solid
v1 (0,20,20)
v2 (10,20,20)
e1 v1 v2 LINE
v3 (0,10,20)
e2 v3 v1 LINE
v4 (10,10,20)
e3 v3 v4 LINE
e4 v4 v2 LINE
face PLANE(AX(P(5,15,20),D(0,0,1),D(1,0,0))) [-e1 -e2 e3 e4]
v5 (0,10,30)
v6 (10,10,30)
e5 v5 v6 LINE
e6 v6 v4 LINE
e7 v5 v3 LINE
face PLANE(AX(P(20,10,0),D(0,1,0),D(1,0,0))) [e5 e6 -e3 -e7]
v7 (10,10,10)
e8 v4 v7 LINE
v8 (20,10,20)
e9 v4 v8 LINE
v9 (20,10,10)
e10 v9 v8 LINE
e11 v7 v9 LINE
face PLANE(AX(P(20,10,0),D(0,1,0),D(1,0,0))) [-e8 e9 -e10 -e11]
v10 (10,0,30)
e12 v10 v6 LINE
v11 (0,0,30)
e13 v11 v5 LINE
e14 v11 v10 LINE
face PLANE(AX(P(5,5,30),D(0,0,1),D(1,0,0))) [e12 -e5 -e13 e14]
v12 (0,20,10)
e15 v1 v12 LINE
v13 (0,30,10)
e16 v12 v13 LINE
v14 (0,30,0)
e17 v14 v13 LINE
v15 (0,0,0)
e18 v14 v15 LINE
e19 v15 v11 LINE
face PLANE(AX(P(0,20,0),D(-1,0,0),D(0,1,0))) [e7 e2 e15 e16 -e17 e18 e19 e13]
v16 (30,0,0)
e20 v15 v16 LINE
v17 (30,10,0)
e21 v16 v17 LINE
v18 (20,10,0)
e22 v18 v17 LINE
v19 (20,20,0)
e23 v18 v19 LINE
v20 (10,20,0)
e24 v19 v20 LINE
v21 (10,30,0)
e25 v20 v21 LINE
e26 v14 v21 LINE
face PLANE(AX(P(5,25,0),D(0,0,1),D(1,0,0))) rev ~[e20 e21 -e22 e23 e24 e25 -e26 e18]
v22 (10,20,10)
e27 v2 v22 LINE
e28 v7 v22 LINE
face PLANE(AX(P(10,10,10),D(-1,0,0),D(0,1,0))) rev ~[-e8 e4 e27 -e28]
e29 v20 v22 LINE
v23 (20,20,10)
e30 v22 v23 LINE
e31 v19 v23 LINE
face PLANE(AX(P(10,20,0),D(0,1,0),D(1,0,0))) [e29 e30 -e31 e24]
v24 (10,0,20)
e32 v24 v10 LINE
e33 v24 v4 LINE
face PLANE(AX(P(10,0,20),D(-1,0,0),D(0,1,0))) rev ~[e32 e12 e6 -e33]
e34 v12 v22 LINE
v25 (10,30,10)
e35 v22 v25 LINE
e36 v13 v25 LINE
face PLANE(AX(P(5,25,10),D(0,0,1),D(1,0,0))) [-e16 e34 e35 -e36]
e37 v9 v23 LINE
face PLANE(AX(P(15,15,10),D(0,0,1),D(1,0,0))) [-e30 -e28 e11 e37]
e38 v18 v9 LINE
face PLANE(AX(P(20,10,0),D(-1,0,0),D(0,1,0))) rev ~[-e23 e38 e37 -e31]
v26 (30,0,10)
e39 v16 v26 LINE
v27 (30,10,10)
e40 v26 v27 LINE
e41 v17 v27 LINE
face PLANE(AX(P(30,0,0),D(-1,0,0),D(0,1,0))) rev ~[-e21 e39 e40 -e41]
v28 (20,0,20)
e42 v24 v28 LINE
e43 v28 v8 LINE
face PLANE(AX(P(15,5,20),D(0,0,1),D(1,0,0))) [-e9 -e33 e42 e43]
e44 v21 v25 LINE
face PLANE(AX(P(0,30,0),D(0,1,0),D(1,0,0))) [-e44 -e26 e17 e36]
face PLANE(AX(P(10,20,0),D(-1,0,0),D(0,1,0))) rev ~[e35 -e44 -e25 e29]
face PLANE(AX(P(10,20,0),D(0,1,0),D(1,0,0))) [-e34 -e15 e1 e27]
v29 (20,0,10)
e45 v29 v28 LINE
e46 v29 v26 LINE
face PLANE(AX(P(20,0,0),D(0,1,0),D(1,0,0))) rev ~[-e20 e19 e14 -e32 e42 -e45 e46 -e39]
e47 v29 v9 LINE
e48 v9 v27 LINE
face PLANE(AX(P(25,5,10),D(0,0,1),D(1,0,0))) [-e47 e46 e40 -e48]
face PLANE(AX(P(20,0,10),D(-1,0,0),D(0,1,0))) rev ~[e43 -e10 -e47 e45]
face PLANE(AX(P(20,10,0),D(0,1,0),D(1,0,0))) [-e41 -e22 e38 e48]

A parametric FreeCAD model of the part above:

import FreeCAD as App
import Part
import Sketcher
from FreeCAD import Vector


def add_polygon(sketch, points):
    """Adds a closed chain of lines whose ends are joined by coincident constraints."""
    first, n = sketch.GeometryCount, len(points)
    for a, b in zip(points, points[1:] + points[:1]):
        sketch.addGeometry(Part.LineSegment(App.Vector(*a, 0), App.Vector(*b, 0)), False)
    for i in range(n):
        sketch.addConstraint(Sketcher.Constraint("Coincident", first + i, 2, first + (i + 1) % n, 1))

doc = App.newDocument("Part")
body = doc.addObject("PartDesign::Body", "Body")

# Sketch on XY plane
sketch1 = body.newObject("Sketcher::SketchObject", "Sketch")
sketch1.AttachmentSupport = (doc.getObject("XY_Plane"), [""])
sketch1.MapMode = "FlatFace"
add_polygon(sketch1, [(10, 10), (10, 0), (20, 0), (20, 10)])  # lines 0-3
sketch1.addConstraint(Sketcher.Constraint("Vertical", 0))
sketch1.addConstraint(Sketcher.Constraint("Horizontal", 1))
sketch1.addConstraint(Sketcher.Constraint("Vertical", 2))
sketch1.addConstraint(Sketcher.Constraint("Horizontal", 3))
sketch1.addConstraint(Sketcher.Constraint("PointOnObject", 0, 2, -1))
sketch1.addConstraint(Sketcher.Constraint("Equal", 3, 0))
sketch1.addConstraint(Sketcher.Constraint("DistanceX", 1, 1, 1, 2, 10.0))
sketch1.addConstraint(Sketcher.Constraint("DistanceX", -1, 1, 0, 2, 10.0))
pad1 = body.newObject("PartDesign::Pad", "Pad")
pad1.Profile = sketch1
pad1.Length = 10
body2 = doc.addObject("PartDesign::Body", "Body001")

# Sketch on XY plane
sketch2 = body2.newObject("Sketcher::SketchObject", "Sketch001")
sketch2.AttachmentSupport = (doc.getObject("XY_Plane001"), [""])
sketch2.MapMode = "FlatFace"
add_polygon(sketch2, [(0, 20), (0, 10), (10, 10), (10, 20)])  # lines 0-3
sketch2.addConstraint(Sketcher.Constraint("Vertical", 0))
sketch2.addConstraint(Sketcher.Constraint("Horizontal", 1))
sketch2.addConstraint(Sketcher.Constraint("Vertical", 2))
sketch2.addConstraint(Sketcher.Constraint("Horizontal", 3))
sketch2.addConstraint(Sketcher.Constraint("PointOnObject", 0, 2, -2))
sketch2.addConstraint(Sketcher.Constraint("Equal", 3, 0))
sketch2.addConstraint(Sketcher.Constraint("DistanceX", 1, 1, 1, 2, 10.0))
sketch2.addConstraint(Sketcher.Constraint("DistanceY", -1, 1, 0, 2, 10.0))
pad2 = body2.newObject("PartDesign::Pad", "Pad001")
pad2.Profile = sketch2
pad2.Length = 10
body3 = doc.addObject("PartDesign::Body", "Body002")

# Sketch on XY plane
sketch3 = body3.newObject("Sketcher::SketchObject", "Sketch002")
sketch3.AttachmentSupport = (doc.getObject("XY_Plane002"), [""])
sketch3.MapMode = "FlatFace"
sketch3.AttachmentOffset = App.Placement(Vector(0, 0, 10), App.Rotation())
add_polygon(sketch3, [(0, 10), (0, 0), (10, 0), (10, 10)])  # lines 0-3
sketch3.addConstraint(Sketcher.Constraint("Vertical", 0))
sketch3.addConstraint(Sketcher.Constraint("Horizontal", 1))
sketch3.addConstraint(Sketcher.Constraint("Vertical", 2))
sketch3.addConstraint(Sketcher.Constraint("Horizontal", 3))
sketch3.addConstraint(Sketcher.Constraint("Coincident", 0, 2, -1, 1))
sketch3.addConstraint(Sketcher.Constraint("Equal", 3, 0))
sketch3.addConstraint(Sketcher.Constraint("DistanceX", 1, 1, 1, 2, 10.0))
pad3 = body3.newObject("PartDesign::Pad", "Pad002")
pad3.Profile = sketch3
pad3.Length = 10
body4 = doc.addObject("PartDesign::Body", "Body003")

# Sketch on XY plane
sketch4 = body4.newObject("Sketcher::SketchObject", "Sketch003")
sketch4.AttachmentSupport = (doc.getObject("XY_Plane003"), [""])
sketch4.MapMode = "FlatFace"
sketch4.AttachmentOffset = App.Placement(Vector(0, 0, 20), App.Rotation())
add_polygon(sketch4, [(0, 10), (0, 0), (10, 0), (10, 10)])  # lines 0-3
sketch4.addConstraint(Sketcher.Constraint("Vertical", 0))
sketch4.addConstraint(Sketcher.Constraint("Horizontal", 1))
sketch4.addConstraint(Sketcher.Constraint("Vertical", 2))
sketch4.addConstraint(Sketcher.Constraint("Horizontal", 3))
sketch4.addConstraint(Sketcher.Constraint("Coincident", 0, 2, -1, 1))
sketch4.addConstraint(Sketcher.Constraint("Equal", 3, 0))
sketch4.addConstraint(Sketcher.Constraint("DistanceX", 1, 1, 1, 2, 10.0))
pad4 = body4.newObject("PartDesign::Pad", "Pad003")
pad4.Profile = sketch4
pad4.Length = 10
body5 = doc.addObject("PartDesign::Body", "Body004")

# Sketch on XY plane
sketch5 = body5.newObject("Sketcher::SketchObject", "Sketch004")
sketch5.AttachmentSupport = (doc.getObject("XY_Plane004"), [""])
sketch5.MapMode = "FlatFace"
sketch5.AttachmentOffset = App.Placement(Vector(0, 0, 10), App.Rotation())
add_polygon(sketch5, [(10, 10), (10, 0), (20, 0), (20, 10)])  # lines 0-3
sketch5.addConstraint(Sketcher.Constraint("Vertical", 0))
sketch5.addConstraint(Sketcher.Constraint("Horizontal", 1))
sketch5.addConstraint(Sketcher.Constraint("Vertical", 2))
sketch5.addConstraint(Sketcher.Constraint("Horizontal", 3))
sketch5.addConstraint(Sketcher.Constraint("PointOnObject", 0, 2, -1))
sketch5.addConstraint(Sketcher.Constraint("Equal", 3, 0))
sketch5.addConstraint(Sketcher.Constraint("DistanceX", 1, 1, 1, 2, 10.0))
sketch5.addConstraint(Sketcher.Constraint("DistanceX", -1, 1, 0, 2, 10.0))
pad5 = body5.newObject("PartDesign::Pad", "Pad004")
pad5.Profile = sketch5
pad5.Length = 10
body6 = doc.addObject("PartDesign::Body", "Body005")

# Sketch on XY plane
sketch6 = body6.newObject("Sketcher::SketchObject", "Sketch005")
sketch6.AttachmentSupport = (doc.getObject("XY_Plane005"), [""])
sketch6.MapMode = "FlatFace"
add_polygon(sketch6, [(20, 10), (20, 0), (30, 0), (30, 10)])  # lines 0-3
sketch6.addConstraint(Sketcher.Constraint("Vertical", 0))
sketch6.addConstraint(Sketcher.Constraint("Horizontal", 1))
sketch6.addConstraint(Sketcher.Constraint("Vertical", 2))
sketch6.addConstraint(Sketcher.Constraint("Horizontal", 3))
sketch6.addConstraint(Sketcher.Constraint("PointOnObject", 0, 2, -1))
sketch6.addConstraint(Sketcher.Constraint("Equal", 3, 0))
sketch6.addConstraint(Sketcher.Constraint("DistanceX", 1, 1, 1, 2, 10.0))
sketch6.addConstraint(Sketcher.Constraint("DistanceX", -1, 1, 0, 2, 20.0))
pad6 = body6.newObject("PartDesign::Pad", "Pad005")
pad6.Profile = sketch6
pad6.Length = 10
body7 = doc.addObject("PartDesign::Body", "Body006")

# Sketch on XY plane
sketch7 = body7.newObject("Sketcher::SketchObject", "Sketch006")
sketch7.AttachmentSupport = (doc.getObject("XY_Plane006"), [""])
sketch7.MapMode = "FlatFace"
sketch7.AttachmentOffset = App.Placement(Vector(0, 0, 10), App.Rotation())
add_polygon(sketch7, [(0, 20), (0, 10), (10, 10), (10, 20)])  # lines 0-3
sketch7.addConstraint(Sketcher.Constraint("Vertical", 0))
sketch7.addConstraint(Sketcher.Constraint("Horizontal", 1))
sketch7.addConstraint(Sketcher.Constraint("Vertical", 2))
sketch7.addConstraint(Sketcher.Constraint("Horizontal", 3))
sketch7.addConstraint(Sketcher.Constraint("PointOnObject", 0, 2, -2))
sketch7.addConstraint(Sketcher.Constraint("Equal", 3, 0))
sketch7.addConstraint(Sketcher.Constraint("DistanceX", 1, 1, 1, 2, 10.0))
sketch7.addConstraint(Sketcher.Constraint("DistanceY", -1, 1, 0, 2, 10.0))
pad7 = body7.newObject("PartDesign::Pad", "Pad006")
pad7.Profile = sketch7
pad7.Length = 10
body8 = doc.addObject("PartDesign::Body", "Body007")

# Sketch on XY plane
sketch8 = body8.newObject("Sketcher::SketchObject", "Sketch007")
sketch8.AttachmentSupport = (doc.getObject("XY_Plane007"), [""])
sketch8.MapMode = "FlatFace"
add_polygon(sketch8, [(10, 20), (10, 10), (20, 10), (20, 20)])  # lines 0-3
sketch8.addConstraint(Sketcher.Constraint("Vertical", 0))
sketch8.addConstraint(Sketcher.Constraint("Horizontal", 1))
sketch8.addConstraint(Sketcher.Constraint("Vertical", 2))
sketch8.addConstraint(Sketcher.Constraint("Horizontal", 3))
sketch8.addConstraint(Sketcher.Constraint("Equal", 3, 0))
sketch8.addConstraint(Sketcher.Constraint("DistanceX", 1, 1, 1, 2, 10.0))
sketch8.addConstraint(Sketcher.Constraint("DistanceX", -1, 1, 0, 2, 10.0))
sketch8.addConstraint(Sketcher.Constraint("DistanceY", -1, 1, 0, 2, 10.0))
pad8 = body8.newObject("PartDesign::Pad", "Pad007")
pad8.Profile = sketch8
pad8.Length = 10
body9 = doc.addObject("PartDesign::Body", "Body008")

# Sketch on XY plane
sketch9 = body9.newObject("Sketcher::SketchObject", "Sketch008")
sketch9.AttachmentSupport = (doc.getObject("XY_Plane008"), [""])
sketch9.MapMode = "FlatFace"
add_polygon(sketch9, [(0, 30), (0, 20), (10, 20), (10, 30)])  # lines 0-3
sketch9.addConstraint(Sketcher.Constraint("Vertical", 0))
sketch9.addConstraint(Sketcher.Constraint("Horizontal", 1))
sketch9.addConstraint(Sketcher.Constraint("Vertical", 2))
sketch9.addConstraint(Sketcher.Constraint("Horizontal", 3))
sketch9.addConstraint(Sketcher.Constraint("PointOnObject", 0, 2, -2))
sketch9.addConstraint(Sketcher.Constraint("Equal", 3, 0))
sketch9.addConstraint(Sketcher.Constraint("DistanceX", 1, 1, 1, 2, 10.0))
sketch9.addConstraint(Sketcher.Constraint("DistanceY", -1, 1, 0, 2, 20.0))
pad9 = body9.newObject("PartDesign::Pad", "Pad008")
pad9.Profile = sketch9
pad9.Length = 10
body10 = doc.addObject("PartDesign::Body", "Body009")

# Sketch on XY plane
sketch10 = body10.newObject("Sketcher::SketchObject", "Sketch009")
sketch10.AttachmentSupport = (doc.getObject("XY_Plane009"), [""])
sketch10.MapMode = "FlatFace"
add_polygon(sketch10, [(0, 10), (0, 0), (10, 0), (10, 10)])  # lines 0-3
sketch10.addConstraint(Sketcher.Constraint("Vertical", 0))
sketch10.addConstraint(Sketcher.Constraint("Horizontal", 1))
sketch10.addConstraint(Sketcher.Constraint("Vertical", 2))
sketch10.addConstraint(Sketcher.Constraint("Horizontal", 3))
sketch10.addConstraint(Sketcher.Constraint("Coincident", 0, 2, -1, 1))
sketch10.addConstraint(Sketcher.Constraint("Equal", 3, 0))
sketch10.addConstraint(Sketcher.Constraint("DistanceX", 1, 1, 1, 2, 10.0))
pad10 = body10.newObject("PartDesign::Pad", "Pad009")
pad10.Profile = sketch10
pad10.Length = 10
doc.recompute()

boolean = body10.newObject("PartDesign::Boolean", "Boolean")
boolean.Type = "Fuse"
boolean.addObjects([body])
doc.recompute()

boolean2 = body10.newObject("PartDesign::Boolean", "Boolean001")
boolean2.Type = "Fuse"
boolean2.addObjects([body2])
doc.recompute()

boolean3 = body10.newObject("PartDesign::Boolean", "Boolean002")
boolean3.Type = "Fuse"
boolean3.addObjects([body3])
doc.recompute()

boolean4 = body10.newObject("PartDesign::Boolean", "Boolean003")
boolean4.Type = "Fuse"
boolean4.addObjects([body4])
doc.recompute()

boolean5 = body10.newObject("PartDesign::Boolean", "Boolean004")
boolean5.Type = "Fuse"
boolean5.addObjects([body5])
doc.recompute()

boolean6 = body10.newObject("PartDesign::Boolean", "Boolean005")
boolean6.Type = "Fuse"
boolean6.addObjects([body6])
doc.recompute()

boolean7 = body10.newObject("PartDesign::Boolean", "Boolean006")
boolean7.Type = "Fuse"
boolean7.addObjects([body7])
doc.recompute()

boolean8 = body10.newObject("PartDesign::Boolean", "Boolean007")
boolean8.Type = "Fuse"
boolean8.addObjects([body8])
doc.recompute()

boolean9 = body10.newObject("PartDesign::Boolean", "Boolean008")
boolean9.Type = "Fuse"
boolean9.addObjects([body9])

doc.recompute()
